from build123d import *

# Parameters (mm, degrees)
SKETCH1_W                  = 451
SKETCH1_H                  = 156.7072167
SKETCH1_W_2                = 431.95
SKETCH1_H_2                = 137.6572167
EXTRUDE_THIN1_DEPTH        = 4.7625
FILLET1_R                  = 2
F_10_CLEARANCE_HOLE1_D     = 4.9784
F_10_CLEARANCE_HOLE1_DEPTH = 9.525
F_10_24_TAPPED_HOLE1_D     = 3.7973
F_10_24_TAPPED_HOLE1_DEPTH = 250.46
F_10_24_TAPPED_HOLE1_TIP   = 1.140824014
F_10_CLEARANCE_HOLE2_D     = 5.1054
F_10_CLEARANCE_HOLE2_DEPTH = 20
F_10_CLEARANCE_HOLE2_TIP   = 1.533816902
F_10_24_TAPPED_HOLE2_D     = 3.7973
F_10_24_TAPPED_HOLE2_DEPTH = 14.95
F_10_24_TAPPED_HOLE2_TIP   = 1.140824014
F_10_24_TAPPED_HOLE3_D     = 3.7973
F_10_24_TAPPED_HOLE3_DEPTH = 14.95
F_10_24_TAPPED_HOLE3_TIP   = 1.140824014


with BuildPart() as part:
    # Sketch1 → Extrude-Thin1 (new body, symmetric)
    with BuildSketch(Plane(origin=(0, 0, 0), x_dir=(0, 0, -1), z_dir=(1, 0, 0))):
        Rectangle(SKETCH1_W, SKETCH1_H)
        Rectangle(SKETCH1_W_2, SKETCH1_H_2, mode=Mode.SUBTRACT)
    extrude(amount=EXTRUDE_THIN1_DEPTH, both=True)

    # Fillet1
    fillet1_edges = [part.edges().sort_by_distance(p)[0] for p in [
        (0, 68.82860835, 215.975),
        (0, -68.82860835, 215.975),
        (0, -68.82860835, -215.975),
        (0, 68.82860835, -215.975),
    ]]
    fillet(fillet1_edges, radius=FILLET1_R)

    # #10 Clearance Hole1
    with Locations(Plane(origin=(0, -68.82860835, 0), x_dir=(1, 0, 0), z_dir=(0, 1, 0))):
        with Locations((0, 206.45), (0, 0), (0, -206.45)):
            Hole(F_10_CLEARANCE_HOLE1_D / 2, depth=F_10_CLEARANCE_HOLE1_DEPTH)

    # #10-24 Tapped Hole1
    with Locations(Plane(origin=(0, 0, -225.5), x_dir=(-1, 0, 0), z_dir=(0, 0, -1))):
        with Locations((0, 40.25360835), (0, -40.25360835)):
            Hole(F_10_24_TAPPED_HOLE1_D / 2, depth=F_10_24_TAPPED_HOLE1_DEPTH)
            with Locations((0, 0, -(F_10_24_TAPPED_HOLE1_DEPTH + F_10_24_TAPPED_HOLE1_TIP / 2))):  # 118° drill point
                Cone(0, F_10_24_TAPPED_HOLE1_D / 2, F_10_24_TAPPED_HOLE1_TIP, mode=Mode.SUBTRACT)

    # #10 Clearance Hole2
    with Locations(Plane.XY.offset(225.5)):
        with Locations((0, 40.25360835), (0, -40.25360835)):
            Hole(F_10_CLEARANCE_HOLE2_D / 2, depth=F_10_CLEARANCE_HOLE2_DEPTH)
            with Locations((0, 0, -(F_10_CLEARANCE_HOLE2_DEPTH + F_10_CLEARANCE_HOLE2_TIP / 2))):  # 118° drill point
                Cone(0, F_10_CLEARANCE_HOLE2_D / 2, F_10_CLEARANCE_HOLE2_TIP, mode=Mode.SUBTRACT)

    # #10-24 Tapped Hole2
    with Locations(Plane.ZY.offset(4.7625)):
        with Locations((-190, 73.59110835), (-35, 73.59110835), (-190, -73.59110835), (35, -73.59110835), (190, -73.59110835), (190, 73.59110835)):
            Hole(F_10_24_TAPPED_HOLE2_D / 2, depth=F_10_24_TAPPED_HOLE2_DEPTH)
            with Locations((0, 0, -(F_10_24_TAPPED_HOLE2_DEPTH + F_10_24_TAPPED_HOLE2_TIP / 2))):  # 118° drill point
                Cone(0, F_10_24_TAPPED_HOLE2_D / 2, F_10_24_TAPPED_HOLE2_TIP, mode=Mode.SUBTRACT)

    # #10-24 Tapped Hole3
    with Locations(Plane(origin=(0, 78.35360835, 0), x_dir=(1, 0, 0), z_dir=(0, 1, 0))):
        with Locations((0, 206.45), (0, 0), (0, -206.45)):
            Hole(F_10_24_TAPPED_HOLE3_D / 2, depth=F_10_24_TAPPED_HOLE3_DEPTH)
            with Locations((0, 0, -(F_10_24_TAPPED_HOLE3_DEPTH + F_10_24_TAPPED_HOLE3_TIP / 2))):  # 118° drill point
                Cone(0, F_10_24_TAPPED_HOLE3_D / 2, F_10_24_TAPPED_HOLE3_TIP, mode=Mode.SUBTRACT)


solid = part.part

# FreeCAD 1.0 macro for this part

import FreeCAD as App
import Part
import Sketcher

V = App.Vector
Q = App.Units.Quantity


def edges_at(feature, points):
    """Names of the edges that pass closest to the given points."""
    edges = feature.Shape.Edges
    near = lambda p: min(range(len(edges)), key=lambda i: edges[i].distToShape(Part.Vertex(*p))[0])
    return sorted({f"Edge{near(p) + 1}" for p in points})

doc = App.newDocument("Part")
body = doc.addObject("PartDesign::Body", "Body")

# Sketch on YZ plane
sketch1 = body.newObject("Sketcher::SketchObject", "Sketch")
sketch1.AttachmentSupport = (doc.getObject("YZ_Plane"), [""])
sketch1.MapMode = "FlatFace"
sketch1.addGeometry([
    Part.LineSegment(V(78, 226, 0), V(-78, 226, 0)),  # 0
    Part.LineSegment(V(-78, 226, 0), V(-78, -226, 0)),  # 1
    Part.LineSegment(V(-78, -226, 0), V(78, -226, 0)),  # 2
    Part.LineSegment(V(78, -226, 0), V(78, 226, 0)),  # 3
    Part.LineSegment(V(-69, -216, 0), V(-69, 216, 0)),  # 4
    Part.LineSegment(V(-69, 216, 0), V(69, 216, 0)),  # 5
    Part.LineSegment(V(69, 216, 0), V(69, -216, 0)),  # 6
    Part.LineSegment(V(69, -216, 0), V(-69, -216, 0)),  # 7
], False)
sketch1.addConstraint([
    Sketcher.Constraint("Coincident", 0, 2, 1, 1),
    Sketcher.Constraint("Coincident", 1, 2, 2, 1),
    Sketcher.Constraint("Coincident", 2, 2, 3, 1),
    Sketcher.Constraint("Coincident", 3, 2, 0, 1),
    Sketcher.Constraint("Coincident", 4, 2, 5, 1),
    Sketcher.Constraint("Coincident", 5, 2, 6, 1),
    Sketcher.Constraint("Coincident", 6, 2, 7, 1),
    Sketcher.Constraint("Coincident", 7, 2, 4, 1),
    Sketcher.Constraint("Horizontal", 0),
    Sketcher.Constraint("Vertical", 1),
    Sketcher.Constraint("Horizontal", 2),
    Sketcher.Constraint("Vertical", 3),
    Sketcher.Constraint("Vertical", 4),
    Sketcher.Constraint("Horizontal", 5),
    Sketcher.Constraint("Vertical", 6),
    Sketcher.Constraint("Horizontal", 7),
    Sketcher.Constraint("Symmetric", 0, 2, 2, 2, -1, 1),
    Sketcher.Constraint("Symmetric", 4, 2, 6, 2, -1, 1),
    Sketcher.Constraint("DistanceX", 0, 2, 4, 2, Q("0.375 in")),
    Sketcher.Constraint("DistanceY", 4, 2, 0, 2, Q("0.375 in")),
    Sketcher.Constraint("DistanceY", 1, 2, 1, 1, Q("451 mm")),
    Sketcher.Constraint("DistanceX", 0, 2, 0, 1, Q("156.707217 mm")),
])
pad1 = body.newObject("PartDesign::Pad", "Pad")
pad1.Profile = sketch1
pad1.Length = Q("0.375 in")
pad1.Midplane = True
doc.recompute()

fillet = body.newObject("PartDesign::Fillet", "Fillet")
fillet.Base = (pad1, edges_at(pad1, [
    (0, 68.829, 215.975),
    (0, -68.829, 215.975),
    (0, -68.829, -215.975),
    (0, 68.829, -215.975),
]))
fillet.Radius = 2

# Sketch on XZ plane
sketch2 = body.newObject("Sketcher::SketchObject", "Sketch001")
sketch2.AttachmentSupport = (doc.getObject("XZ_Plane"), [""])
sketch2.MapMode = "FlatFace"
sketch2.AttachmentOffset = App.Placement(V(0, 0, 68.828608), App.Rotation())
sketch2.addGeometry([
    Part.Circle(V(0, -206.4, 0), V(0, 0, 1), 2.5),
    Part.Circle(V(0, 0, 0), V(0, 0, 1), 2.5),
    Part.Circle(V(0, 206.4, 0), V(0, 0, 1), 2.5),
], False)
sketch2.addConstraint([
    Sketcher.Constraint("Coincident", 1, 3, -1, 1),
    Sketcher.Constraint("Equal", 0, 1),
    Sketcher.Constraint("Equal", 1, 2),
    Sketcher.Constraint("Symmetric", 0, 3, 2, 3, -1, 1),
    Sketcher.Constraint("PointOnObject", 0, 3, -2),
    Sketcher.Constraint("Diameter", 0, Q("0.196 in")),
    Sketcher.Constraint("DistanceY", 0, 3, -1, 1, Q("206.45 mm")),
])
doc.recompute()
hole = body.newObject("PartDesign::Hole", "Hole")
hole.Profile = sketch2
hole.ThreadType = "None"
hole.Diameter = Q("0.196 in")
hole.DepthType = "Dimension"
hole.Depth = Q("0.375 in")
hole.DrillPoint = "Flat"
hole.Reversed = True

# Sketch on XY plane
sketch3 = body.newObject("Sketcher::SketchObject", "Sketch002")
sketch3.AttachmentSupport = (doc.getObject("XY_Plane"), [""])
sketch3.MapMode = "FlatFace"
sketch3.AttachmentOffset = App.Placement(V(0, 0, -225.5), App.Rotation())
sketch3.addGeometry([
    Part.Circle(V(0, 40.3, 0), V(0, 0, 1), 1.9),
    Part.Circle(V(0, -40.3, 0), V(0, 0, 1), 1.9),
], False)
sketch3.addConstraint([
    Sketcher.Constraint("Equal", 0, 1),
    Sketcher.Constraint("Symmetric", 0, 3, 1, 3, -1, 1),
    Sketcher.Constraint("PointOnObject", 0, 3, -2),
    Sketcher.Constraint("Diameter", 0, Q("0.1495 in")),
    Sketcher.Constraint("DistanceY", -1, 1, 0, 3, Q("40.253608 mm")),
])
doc.recompute()
hole2 = body.newObject("PartDesign::Hole", "Hole001")
hole2.Profile = sketch3
hole2.ThreadType = "None"
hole2.Diameter = Q("0.1495 in")
hole2.DepthType = "Dimension"
hole2.Depth = 250.46
hole2.DrillPoint = "Angled"
hole2.DrillPointAngle = 118
hole2.Reversed = True

# Sketch on XY plane
sketch4 = body.newObject("Sketcher::SketchObject", "Sketch003")
sketch4.AttachmentSupport = (doc.getObject("XY_Plane"), [""])
sketch4.MapMode = "FlatFace"
sketch4.AttachmentOffset = App.Placement(V(0, 0, 225.5), App.Rotation())
sketch4.addGeometry([
    Part.Circle(V(0, 40.3, 0), V(0, 0, 1), 2.6),
    Part.Circle(V(0, -40.3, 0), V(0, 0, 1), 2.6),
], False)
sketch4.addConstraint([
    Sketcher.Constraint("Equal", 0, 1),
    Sketcher.Constraint("Symmetric", 0, 3, 1, 3, -1, 1),
    Sketcher.Constraint("PointOnObject", 0, 3, -2),
    Sketcher.Constraint("Diameter", 0, Q("0.201 in")),
    Sketcher.Constraint("DistanceY", -1, 1, 0, 3, Q("40.253608 mm")),
])
doc.recompute()
hole3 = body.newObject("PartDesign::Hole", "Hole002")
hole3.Profile = sketch4
hole3.ThreadType = "None"
hole3.Diameter = Q("0.201 in")
hole3.DepthType = "Dimension"
hole3.Depth = 20
hole3.DrillPoint = "Angled"
hole3.DrillPointAngle = 118

# Sketch on YZ plane
sketch5 = body.newObject("Sketcher::SketchObject", "Sketch004")
sketch5.AttachmentSupport = (doc.getObject("YZ_Plane"), [""])
sketch5.MapMode = "FlatFace"
sketch5.AttachmentOffset = App.Placement(V(0, 0, -0.1875 * 25.4), App.Rotation())
sketch5.addGeometry([
    Part.Circle(V(73.6, -190, 0), V(0, 0, 1), 1.9),  # 0
    Part.Circle(V(73.6, -35, 0), V(0, 0, 1), 1.9),  # 1
    Part.Circle(V(-73.6, -190, 0), V(0, 0, 1), 1.9),  # 2
    Part.Circle(V(-73.6, 35, 0), V(0, 0, 1), 1.9),  # 3
    Part.Circle(V(-73.6, 190, 0), V(0, 0, 1), 1.9),  # 4
    Part.Circle(V(73.6, 190, 0), V(0, 0, 1), 1.9),  # 5
], False)
sketch5.addConstraint([
    Sketcher.Constraint("Equal", 0, 1),
    Sketcher.Constraint("Equal", 1, 2),
    Sketcher.Constraint("Equal", 2, 3),
    Sketcher.Constraint("Equal", 3, 4),
    Sketcher.Constraint("Equal", 4, 5),
    Sketcher.Constraint("Symmetric", 1, 3, 3, 3, -1, 1),
    Sketcher.Constraint("Symmetric", 0, 3, 4, 3, -1, 1),
    Sketcher.Constraint("Symmetric", 2, 3, 5, 3, -1, 1),
    Sketcher.Constraint("Symmetric", 0, 3, 2, 3, -2),
    Sketcher.Constraint("Vertical", 0, 3, 1, 3),
    Sketcher.Constraint("Diameter", 0, Q("0.1495 in")),
    Sketcher.Constraint("DistanceY", 0, 3, -1, 1, Q("190 mm")),
    Sketcher.Constraint("DistanceY", 1, 3, -1, 1, Q("35 mm")),
    Sketcher.Constraint("DistanceX", -1, 1, 0, 3, Q("73.591108 mm")),
])
doc.recompute()
hole4 = body.newObject("PartDesign::Hole", "Hole003")
hole4.Profile = sketch5
hole4.ThreadType = "None"
hole4.Diameter = Q("0.1495 in")
hole4.DepthType = "Dimension"
hole4.Depth = 14.95
hole4.DrillPoint = "Angled"
hole4.DrillPointAngle = 118
hole4.Reversed = True

# Sketch on XZ plane
sketch6 = body.newObject("Sketcher::SketchObject", "Sketch005")
sketch6.AttachmentSupport = (doc.getObject("XZ_Plane"), [""])
sketch6.MapMode = "FlatFace"
sketch6.AttachmentOffset = App.Placement(V(0, 0, -78.353608), App.Rotation())
sketch6.addGeometry([
    Part.Circle(V(0, -206.4, 0), V(0, 0, 1), 1.9),
    Part.Circle(V(0, 0, 0), V(0, 0, 1), 1.9),
    Part.Circle(V(0, 206.4, 0), V(0, 0, 1), 1.9),
], False)
sketch6.addConstraint([
    Sketcher.Constraint("Coincident", 1, 3, -1, 1),
    Sketcher.Constraint("Equal", 0, 1),
    Sketcher.Constraint("Equal", 1, 2),
    Sketcher.Constraint("Symmetric", 0, 3, 2, 3, -1, 1),
    Sketcher.Constraint("PointOnObject", 0, 3, -2),
    Sketcher.Constraint("Diameter", 0, Q("0.1495 in")),
    Sketcher.Constraint("DistanceY", 0, 3, -1, 1, Q("206.45 mm")),
])
doc.recompute()
hole5 = body.newObject("PartDesign::Hole", "Hole004")
hole5.Profile = sketch6
hole5.ThreadType = "None"
hole5.Diameter = Q("0.1495 in")
hole5.DepthType = "Dimension"
hole5.Depth = 14.95
hole5.DrillPoint = "Angled"
hole5.DrillPointAngle = 118
hole5.Reversed = True

doc.recompute()
